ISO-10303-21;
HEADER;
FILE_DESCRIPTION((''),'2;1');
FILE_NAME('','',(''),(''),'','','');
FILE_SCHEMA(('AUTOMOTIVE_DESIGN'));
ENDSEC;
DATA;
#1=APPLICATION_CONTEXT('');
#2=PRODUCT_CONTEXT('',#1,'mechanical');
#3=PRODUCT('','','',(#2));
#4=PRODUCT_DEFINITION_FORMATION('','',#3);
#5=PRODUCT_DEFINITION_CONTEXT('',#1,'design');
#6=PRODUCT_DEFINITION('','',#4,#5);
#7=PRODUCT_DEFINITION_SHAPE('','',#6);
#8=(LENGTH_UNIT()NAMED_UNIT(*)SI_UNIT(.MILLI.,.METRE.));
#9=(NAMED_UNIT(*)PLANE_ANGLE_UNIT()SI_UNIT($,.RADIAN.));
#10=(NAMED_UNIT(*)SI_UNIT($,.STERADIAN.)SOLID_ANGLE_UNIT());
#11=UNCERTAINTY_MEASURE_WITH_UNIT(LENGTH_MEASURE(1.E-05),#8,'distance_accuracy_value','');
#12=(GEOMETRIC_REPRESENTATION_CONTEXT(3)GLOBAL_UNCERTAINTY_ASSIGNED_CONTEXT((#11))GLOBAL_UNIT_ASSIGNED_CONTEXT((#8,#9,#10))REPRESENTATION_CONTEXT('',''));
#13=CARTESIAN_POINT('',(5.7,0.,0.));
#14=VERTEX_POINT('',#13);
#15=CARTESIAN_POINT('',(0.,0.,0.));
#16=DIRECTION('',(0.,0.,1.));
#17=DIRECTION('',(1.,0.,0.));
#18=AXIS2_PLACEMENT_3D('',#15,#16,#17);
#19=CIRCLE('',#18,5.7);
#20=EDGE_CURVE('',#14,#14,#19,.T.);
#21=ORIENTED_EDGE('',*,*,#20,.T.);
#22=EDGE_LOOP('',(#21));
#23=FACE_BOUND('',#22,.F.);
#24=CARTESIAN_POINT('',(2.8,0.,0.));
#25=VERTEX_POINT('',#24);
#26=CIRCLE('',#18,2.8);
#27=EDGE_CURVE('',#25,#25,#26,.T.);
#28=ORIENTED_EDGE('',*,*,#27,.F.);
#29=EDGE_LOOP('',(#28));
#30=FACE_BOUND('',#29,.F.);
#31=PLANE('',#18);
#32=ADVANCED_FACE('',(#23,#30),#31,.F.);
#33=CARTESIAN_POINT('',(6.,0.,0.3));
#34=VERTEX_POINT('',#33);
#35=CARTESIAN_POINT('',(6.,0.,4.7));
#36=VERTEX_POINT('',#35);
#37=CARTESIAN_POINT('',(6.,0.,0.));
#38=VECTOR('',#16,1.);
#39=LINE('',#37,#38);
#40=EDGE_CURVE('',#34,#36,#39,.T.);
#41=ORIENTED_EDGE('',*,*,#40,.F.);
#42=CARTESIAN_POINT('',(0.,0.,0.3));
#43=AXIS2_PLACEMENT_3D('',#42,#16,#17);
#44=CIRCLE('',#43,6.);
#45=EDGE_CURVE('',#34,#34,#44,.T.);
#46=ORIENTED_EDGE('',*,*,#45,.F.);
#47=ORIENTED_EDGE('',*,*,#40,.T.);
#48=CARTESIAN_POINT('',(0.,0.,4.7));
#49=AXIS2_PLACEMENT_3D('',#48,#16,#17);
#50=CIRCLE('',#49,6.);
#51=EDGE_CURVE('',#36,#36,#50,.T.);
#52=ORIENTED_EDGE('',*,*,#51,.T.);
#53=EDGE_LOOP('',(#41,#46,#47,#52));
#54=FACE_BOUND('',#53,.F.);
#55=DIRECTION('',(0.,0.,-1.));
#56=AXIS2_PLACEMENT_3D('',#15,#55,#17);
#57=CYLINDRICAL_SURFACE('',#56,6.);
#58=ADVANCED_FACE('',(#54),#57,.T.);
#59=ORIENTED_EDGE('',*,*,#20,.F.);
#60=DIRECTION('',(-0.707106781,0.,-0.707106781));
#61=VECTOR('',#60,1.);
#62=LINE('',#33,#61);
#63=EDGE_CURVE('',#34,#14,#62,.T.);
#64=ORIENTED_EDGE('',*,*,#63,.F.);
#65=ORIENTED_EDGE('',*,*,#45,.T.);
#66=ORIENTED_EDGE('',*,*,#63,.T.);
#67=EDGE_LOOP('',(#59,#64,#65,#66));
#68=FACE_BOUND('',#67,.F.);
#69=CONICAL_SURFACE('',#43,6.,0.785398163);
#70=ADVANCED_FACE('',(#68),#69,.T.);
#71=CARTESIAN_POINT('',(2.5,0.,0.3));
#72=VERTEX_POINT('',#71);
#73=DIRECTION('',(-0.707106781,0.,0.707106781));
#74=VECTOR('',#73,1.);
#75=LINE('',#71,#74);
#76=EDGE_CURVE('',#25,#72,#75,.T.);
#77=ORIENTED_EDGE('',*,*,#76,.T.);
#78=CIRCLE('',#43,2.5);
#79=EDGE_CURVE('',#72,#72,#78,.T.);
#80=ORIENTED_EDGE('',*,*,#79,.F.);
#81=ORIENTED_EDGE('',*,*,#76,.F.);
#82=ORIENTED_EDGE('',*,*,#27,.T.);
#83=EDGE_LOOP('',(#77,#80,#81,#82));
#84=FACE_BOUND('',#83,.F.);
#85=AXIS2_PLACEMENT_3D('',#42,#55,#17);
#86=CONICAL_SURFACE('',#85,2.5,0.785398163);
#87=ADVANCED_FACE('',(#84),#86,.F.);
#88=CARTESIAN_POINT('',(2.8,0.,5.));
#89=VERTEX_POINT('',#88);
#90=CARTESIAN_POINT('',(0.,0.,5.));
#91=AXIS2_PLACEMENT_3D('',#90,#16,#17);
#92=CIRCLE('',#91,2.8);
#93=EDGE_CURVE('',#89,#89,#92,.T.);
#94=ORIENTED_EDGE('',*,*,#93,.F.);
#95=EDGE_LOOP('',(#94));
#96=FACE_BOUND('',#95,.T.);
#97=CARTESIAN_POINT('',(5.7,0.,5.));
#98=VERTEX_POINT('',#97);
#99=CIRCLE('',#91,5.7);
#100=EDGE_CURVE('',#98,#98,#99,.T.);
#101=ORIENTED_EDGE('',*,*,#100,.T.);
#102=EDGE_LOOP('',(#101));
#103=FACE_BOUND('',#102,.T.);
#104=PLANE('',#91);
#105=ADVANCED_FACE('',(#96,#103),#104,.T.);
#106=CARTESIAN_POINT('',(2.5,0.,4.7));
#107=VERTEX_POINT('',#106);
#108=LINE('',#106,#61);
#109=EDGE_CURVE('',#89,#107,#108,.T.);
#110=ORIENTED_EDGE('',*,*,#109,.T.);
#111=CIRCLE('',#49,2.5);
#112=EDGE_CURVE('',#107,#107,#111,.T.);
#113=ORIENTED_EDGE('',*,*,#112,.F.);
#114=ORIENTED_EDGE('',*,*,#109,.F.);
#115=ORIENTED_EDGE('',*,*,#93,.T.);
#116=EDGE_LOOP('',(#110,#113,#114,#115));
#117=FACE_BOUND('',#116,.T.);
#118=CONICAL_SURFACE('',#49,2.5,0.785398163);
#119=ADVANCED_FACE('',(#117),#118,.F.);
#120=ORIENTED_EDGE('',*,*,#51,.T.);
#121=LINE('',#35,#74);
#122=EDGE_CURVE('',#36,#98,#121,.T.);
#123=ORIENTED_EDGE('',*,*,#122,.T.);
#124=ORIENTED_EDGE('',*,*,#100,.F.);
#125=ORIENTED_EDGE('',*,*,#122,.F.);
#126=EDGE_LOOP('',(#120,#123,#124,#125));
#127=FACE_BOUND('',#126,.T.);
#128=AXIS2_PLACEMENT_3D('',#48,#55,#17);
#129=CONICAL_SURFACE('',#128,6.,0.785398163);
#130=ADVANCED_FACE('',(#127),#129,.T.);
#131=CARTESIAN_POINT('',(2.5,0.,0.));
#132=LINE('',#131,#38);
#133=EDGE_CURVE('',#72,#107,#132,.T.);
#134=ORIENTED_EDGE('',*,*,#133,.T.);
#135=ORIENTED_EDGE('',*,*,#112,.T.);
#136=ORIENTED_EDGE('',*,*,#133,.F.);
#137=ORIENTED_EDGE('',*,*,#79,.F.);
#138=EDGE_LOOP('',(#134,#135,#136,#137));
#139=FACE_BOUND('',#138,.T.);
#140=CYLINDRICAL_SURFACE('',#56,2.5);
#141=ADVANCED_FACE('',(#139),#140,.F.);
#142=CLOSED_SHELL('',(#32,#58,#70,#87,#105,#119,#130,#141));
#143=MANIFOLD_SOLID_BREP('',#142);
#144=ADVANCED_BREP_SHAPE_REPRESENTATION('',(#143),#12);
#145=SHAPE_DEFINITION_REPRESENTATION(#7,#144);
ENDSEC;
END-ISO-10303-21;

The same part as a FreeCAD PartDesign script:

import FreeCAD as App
import Part
import Sketcher
Q = App.Units.Quantity


def edges_at(feature, points):
    """Names of the edges that pass closest to the given points."""
    edges = feature.Shape.Edges
    near = lambda p: min(range(len(edges)), key=lambda i: edges[i].distToShape(Part.Vertex(*p))[0])
    return sorted({f"Edge{near(p) + 1}" for p in points})

doc = App.newDocument("Part")
body = doc.addObject("PartDesign::Body", "Body")

sketch1 = body.newObject("Sketcher::SketchObject", "Sketch")
sketch1.AttachmentSupport = (doc.getObject("XY_Plane"), [""])
sketch1.MapMode = "FlatFace"
sketch1.addGeometry([
    Part.Circle(App.Vector(0, 0, 0), App.Vector(0, 0, 1), 6),
    Part.Circle(App.Vector(0, 0, 0), App.Vector(0, 0, 1), 2.5),
], False)
sketch1.addConstraint([
    Sketcher.Constraint("Coincident", 0, 3, -1, 1),
    Sketcher.Constraint("Coincident", 1, 3, -1, 1),
    Sketcher.Constraint("Diameter", 0, Q("12 mm")),
    Sketcher.Constraint("Diameter", 1, Q("5 mm")),
])
pad1 = body.newObject("PartDesign::Pad", "Pad")
pad1.Profile = sketch1
pad1.Length = 5
doc.recompute()

chamfer = body.newObject("PartDesign::Chamfer", "Chamfer")
chamfer.Base = (pad1, edges_at(pad1, [(-6, 0, 5), (-6, 0, 0)]))
chamfer.Size = 0.3
doc.recompute()

chamfer2 = body.newObject("PartDesign::Chamfer", "Chamfer001")
chamfer2.Base = (chamfer, edges_at(chamfer, [(-2.5, 0, 5), (-2.5, 0, 0)]))
chamfer2.Size = 0.3

doc.recompute()
